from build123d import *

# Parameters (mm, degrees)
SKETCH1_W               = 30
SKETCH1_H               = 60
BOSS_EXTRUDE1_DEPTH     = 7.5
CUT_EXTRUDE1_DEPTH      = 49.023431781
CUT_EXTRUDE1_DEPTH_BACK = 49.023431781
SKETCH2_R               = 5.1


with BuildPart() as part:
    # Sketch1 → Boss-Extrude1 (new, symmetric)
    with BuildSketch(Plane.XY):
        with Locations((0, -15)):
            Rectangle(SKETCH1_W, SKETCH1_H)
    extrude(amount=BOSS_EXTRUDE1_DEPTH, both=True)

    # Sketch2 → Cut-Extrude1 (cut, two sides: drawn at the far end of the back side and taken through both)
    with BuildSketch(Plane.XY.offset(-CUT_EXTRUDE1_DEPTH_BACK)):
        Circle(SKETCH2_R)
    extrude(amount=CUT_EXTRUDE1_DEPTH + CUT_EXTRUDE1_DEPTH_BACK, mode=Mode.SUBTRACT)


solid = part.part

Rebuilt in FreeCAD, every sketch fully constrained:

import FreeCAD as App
import Part
import Sketcher

V = App.Vector
Q = App.Units.Quantity


def add_polygon(sketch, points):
    """Adds a closed chain of lines whose ends are joined by coincident constraints."""
    first, n = sketch.GeometryCount, len(points)
    for a, b in zip(points, points[1:] + points[:1]):
        sketch.addGeometry(Part.LineSegment(App.Vector(*a, 0), App.Vector(*b, 0)), False)
    for i in range(n):
        sketch.addConstraint(Sketcher.Constraint("Coincident", first + i, 2, first + (i + 1) % n, 1))

doc = App.newDocument("Part")
body = doc.addObject("PartDesign::Body", "Body")

# Sketch on XY plane
sketch1 = doc.addObject("Sketcher::SketchObject", "Sketch")
body.addObject(sketch1)
sketch1.AttachmentSupport = (doc.XY_Plane, [""])
sketch1.MapMode = "FlatFace"
add_polygon(sketch1, [(-15, 15), (-15, -45), (15, -45), (15, 15)])  # lines 0-3
sketch1.addConstraint([
    Sketcher.Constraint("Vertical", 0),
    Sketcher.Constraint("Horizontal", 1),
    Sketcher.Constraint("Vertical", 2),
    Sketcher.Constraint("Horizontal", 3),
    Sketcher.Constraint("DistanceX", 1, 1, 1, 2, Q("30 mm")),
    Sketcher.Constraint("DistanceY", 0, 2, 0, 1, Q("60 mm")),
    Sketcher.Constraint("DistanceX", 0, 2, -1, 1, Q("15 mm")),
    Sketcher.Constraint("DistanceY", 0, 2, -1, 1, Q("45 mm")),
])
pad1 = doc.addObject("PartDesign::Pad", "Pad")
body.addObject(pad1)
pad1.Profile = sketch1
pad1.Length = 15
pad1.Midplane = True

# Sketch on XY plane
sketch2 = doc.addObject("Sketcher::SketchObject", "Sketch001")
body.addObject(sketch2)
sketch2.AttachmentSupport = (doc.XY_Plane, [""])
sketch2.MapMode = "FlatFace"
sketch2.addGeometry(Part.Circle(V(0, 0, 0), V(0, 0, 1), 5), False)
sketch2.addConstraint([
    Sketcher.Constraint("Coincident", 0, 3, -1, 1),
    Sketcher.Constraint("Diameter", 0, Q("10.2 mm")),
])
pocket1 = doc.addObject("PartDesign::Pocket", "Pocket")
body.addObject(pocket1)
pocket1.Profile = sketch2
pocket1.Type = "ThroughAll"
pocket1.Midplane = True

doc.recompute()
